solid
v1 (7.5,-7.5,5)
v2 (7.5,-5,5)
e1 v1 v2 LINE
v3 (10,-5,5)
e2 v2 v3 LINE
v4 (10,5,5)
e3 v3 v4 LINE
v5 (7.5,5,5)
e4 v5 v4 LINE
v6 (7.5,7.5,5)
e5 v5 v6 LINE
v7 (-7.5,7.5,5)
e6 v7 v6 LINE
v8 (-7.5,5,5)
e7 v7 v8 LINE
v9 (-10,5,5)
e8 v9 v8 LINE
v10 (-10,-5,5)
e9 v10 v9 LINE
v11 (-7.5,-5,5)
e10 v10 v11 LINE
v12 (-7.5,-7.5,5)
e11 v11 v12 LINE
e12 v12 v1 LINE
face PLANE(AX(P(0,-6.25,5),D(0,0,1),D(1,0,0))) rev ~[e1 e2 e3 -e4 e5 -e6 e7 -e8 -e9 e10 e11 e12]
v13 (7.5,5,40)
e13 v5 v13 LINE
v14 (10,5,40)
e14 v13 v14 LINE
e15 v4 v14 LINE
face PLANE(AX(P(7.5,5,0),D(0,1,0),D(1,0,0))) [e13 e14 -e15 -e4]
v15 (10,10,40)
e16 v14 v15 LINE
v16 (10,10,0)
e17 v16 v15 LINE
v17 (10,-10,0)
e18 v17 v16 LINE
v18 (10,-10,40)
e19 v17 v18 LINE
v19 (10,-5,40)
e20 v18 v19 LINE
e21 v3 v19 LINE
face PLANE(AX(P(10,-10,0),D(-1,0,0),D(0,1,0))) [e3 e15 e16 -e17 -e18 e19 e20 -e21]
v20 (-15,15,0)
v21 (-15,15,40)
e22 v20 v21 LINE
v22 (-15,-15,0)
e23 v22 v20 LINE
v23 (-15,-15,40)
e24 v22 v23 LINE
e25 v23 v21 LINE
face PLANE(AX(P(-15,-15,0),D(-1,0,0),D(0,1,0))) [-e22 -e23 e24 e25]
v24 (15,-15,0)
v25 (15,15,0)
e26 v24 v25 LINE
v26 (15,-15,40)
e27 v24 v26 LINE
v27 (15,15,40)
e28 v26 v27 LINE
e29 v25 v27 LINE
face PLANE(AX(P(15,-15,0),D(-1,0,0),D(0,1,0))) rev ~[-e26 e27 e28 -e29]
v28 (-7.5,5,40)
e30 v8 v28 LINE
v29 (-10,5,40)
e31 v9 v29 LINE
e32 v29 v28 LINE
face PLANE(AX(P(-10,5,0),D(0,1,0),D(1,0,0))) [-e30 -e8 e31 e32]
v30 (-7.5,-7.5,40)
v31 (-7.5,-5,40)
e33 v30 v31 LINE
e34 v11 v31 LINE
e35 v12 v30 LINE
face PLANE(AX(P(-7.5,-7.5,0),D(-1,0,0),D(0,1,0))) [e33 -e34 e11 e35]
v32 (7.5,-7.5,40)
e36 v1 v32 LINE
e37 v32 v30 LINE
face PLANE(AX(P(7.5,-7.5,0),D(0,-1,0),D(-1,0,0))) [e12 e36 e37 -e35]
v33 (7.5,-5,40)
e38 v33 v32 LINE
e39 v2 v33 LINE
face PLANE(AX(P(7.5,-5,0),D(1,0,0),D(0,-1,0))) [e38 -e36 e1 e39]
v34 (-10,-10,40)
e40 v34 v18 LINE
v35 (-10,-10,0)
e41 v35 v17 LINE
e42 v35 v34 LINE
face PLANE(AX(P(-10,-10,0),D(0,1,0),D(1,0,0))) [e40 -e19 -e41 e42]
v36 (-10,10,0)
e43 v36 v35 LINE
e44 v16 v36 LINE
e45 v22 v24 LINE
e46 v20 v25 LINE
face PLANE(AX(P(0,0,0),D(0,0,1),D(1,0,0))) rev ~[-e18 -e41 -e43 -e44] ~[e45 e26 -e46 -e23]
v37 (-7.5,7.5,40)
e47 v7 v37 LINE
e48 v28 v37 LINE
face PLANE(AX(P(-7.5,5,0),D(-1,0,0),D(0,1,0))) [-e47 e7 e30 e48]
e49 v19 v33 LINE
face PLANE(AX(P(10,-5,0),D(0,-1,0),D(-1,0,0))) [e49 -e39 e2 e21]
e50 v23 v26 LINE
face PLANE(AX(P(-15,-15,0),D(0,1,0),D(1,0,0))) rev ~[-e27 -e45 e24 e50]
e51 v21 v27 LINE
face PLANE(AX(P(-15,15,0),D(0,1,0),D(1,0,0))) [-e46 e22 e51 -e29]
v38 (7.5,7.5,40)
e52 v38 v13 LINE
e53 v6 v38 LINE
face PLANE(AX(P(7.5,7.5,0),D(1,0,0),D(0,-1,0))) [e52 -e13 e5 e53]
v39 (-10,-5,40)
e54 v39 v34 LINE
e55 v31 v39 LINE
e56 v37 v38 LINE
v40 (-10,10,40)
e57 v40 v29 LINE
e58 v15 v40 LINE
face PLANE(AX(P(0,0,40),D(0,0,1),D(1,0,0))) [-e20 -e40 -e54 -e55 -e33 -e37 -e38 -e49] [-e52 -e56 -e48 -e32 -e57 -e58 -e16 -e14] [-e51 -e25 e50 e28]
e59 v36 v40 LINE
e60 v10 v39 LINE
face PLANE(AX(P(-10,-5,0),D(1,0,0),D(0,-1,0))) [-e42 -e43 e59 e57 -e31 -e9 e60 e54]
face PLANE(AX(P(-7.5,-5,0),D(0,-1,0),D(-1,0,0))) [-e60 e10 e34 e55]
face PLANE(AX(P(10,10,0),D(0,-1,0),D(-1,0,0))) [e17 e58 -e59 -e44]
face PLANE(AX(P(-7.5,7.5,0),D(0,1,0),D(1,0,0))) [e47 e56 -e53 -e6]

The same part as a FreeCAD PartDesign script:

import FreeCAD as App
import Part
import Sketcher

V = App.Vector


def add_polygon(sketch, points):
    """Adds a closed chain of lines whose ends are joined by coincident constraints."""
    first, n = sketch.GeometryCount, len(points)
    for a, b in zip(points, points[1:] + points[:1]):
        sketch.addGeometry(Part.LineSegment(App.Vector(*a, 0), App.Vector(*b, 0)), False)
    for i in range(n):
        sketch.addConstraint(Sketcher.Constraint("Coincident", first + i, 2, first + (i + 1) % n, 1))

doc = App.newDocument("Part")
body = doc.addObject("PartDesign::Body", "Body")

sketch1 = doc.addObject("Sketcher::SketchObject", "Sketch")
body.addObject(sketch1)
sketch1.AttachmentSupport = (doc.XY_Plane, [""])
sketch1.MapMode = "FlatFace"
add_polygon(sketch1, [(-15, 15), (-15, -15), (15, -15), (15, 15)])
sketch1.addConstraint([
    Sketcher.Constraint("Vertical", 0),
    Sketcher.Constraint("Horizontal", 1),
    Sketcher.Constraint("Vertical", 2),
    Sketcher.Constraint("Horizontal", 3),
    Sketcher.Constraint("Symmetric", 0, 2, 2, 2, -1, 1),
    Sketcher.Constraint("Equal", 3, 0),
    Sketcher.Constraint("DistanceX", 1, 1, 1, 2, 30.0),
])
pad1 = doc.addObject("PartDesign::Pad", "Pad")
body.addObject(pad1)
pad1.Profile = sketch1
pad1.Length = 40

sketch2 = doc.addObject("Sketcher::SketchObject", "Sketch001")
body.addObject(sketch2)
sketch2.AttachmentSupport = (doc.XY_Plane, [""])
sketch2.MapMode = "FlatFace"
add_polygon(sketch2, [(-7.5, -7.5), (7.5, -7.5), (7.5, -5), (10, -5), (10, 5), (7.5, 5), (7.5, 7.5), (-7.5, 7.5), (-7.5, 5), (-10, 5), (-10, -5), (-7.5, -5)])
sketch2.addConstraint([
    Sketcher.Constraint("Horizontal", 0),
    Sketcher.Constraint("Vertical", 1),
    Sketcher.Constraint("Horizontal", 2),
    Sketcher.Constraint("Vertical", 3),
    Sketcher.Constraint("Horizontal", 4),
    Sketcher.Constraint("Vertical", 5),
    Sketcher.Constraint("Horizontal", 6),
    Sketcher.Constraint("Vertical", 7),
    Sketcher.Constraint("Horizontal", 8),
    Sketcher.Constraint("Vertical", 9),
    Sketcher.Constraint("Horizontal", 10),
    Sketcher.Constraint("Vertical", 11),
    Sketcher.Constraint("Symmetric", 0, 2, 6, 2, -1, 1),
    Sketcher.Constraint("Symmetric", 2, 2, 8, 2, -1, 1),
    Sketcher.Constraint("Symmetric", 4, 2, 10, 2, -1, 1),
    Sketcher.Constraint("Symmetric", 4, 2, 7, 2, -2),
    Sketcher.Constraint("Equal", 10, 1),
    Sketcher.Constraint("DistanceX", 0, 1, 0, 2, 15.0),
    Sketcher.Constraint("DistanceY", 3, 1, 3, 2, 10.0),
    Sketcher.Constraint("DistanceX", 2, 1, 2, 2, 2.5),
])
pocket1 = doc.addObject("PartDesign::Pocket", "Pocket")
body.addObject(pocket1)
pocket1.Profile = sketch2
pocket1.Length = 5
pocket1.Reversed = True

sketch3 = doc.addObject("Sketcher::SketchObject", "Sketch002")
body.addObject(sketch3)
sketch3.AttachmentSupport = (doc.XY_Plane, [""])
sketch3.MapMode = "FlatFace"
add_polygon(sketch3, [(7.5, -5), (7.5, -7.5), (-7.5, -7.5), (-7.5, -5), (-10, -5), (-10, -10), (10, -10), (10, -5)])
add_polygon(sketch3, [(7.5, 7.5), (7.5, 5), (10, 5), (10, 10), (-10, 10), (-10, 5), (-7.5, 5), (-7.5, 7.5)])
sketch3.addConstraint([
    Sketcher.Constraint("Vertical", 0),
    Sketcher.Constraint("Horizontal", 1),
    Sketcher.Constraint("Vertical", 2),
    Sketcher.Constraint("Horizontal", 3),
    Sketcher.Constraint("Vertical", 4),
    Sketcher.Constraint("Horizontal", 5),
    Sketcher.Constraint("Vertical", 6),
    Sketcher.Constraint("Horizontal", 7),
    Sketcher.Constraint("Vertical", 8),
    Sketcher.Constraint("Horizontal", 9),
    Sketcher.Constraint("Vertical", 10),
    Sketcher.Constraint("Horizontal", 11),
    Sketcher.Constraint("Vertical", 12),
    Sketcher.Constraint("Horizontal", 13),
    Sketcher.Constraint("Vertical", 14),
    Sketcher.Constraint("Horizontal", 15),
    Sketcher.Constraint("Symmetric", 2, 2, 8, 2, -1, 1),
    Sketcher.Constraint("Symmetric", 4, 2, 10, 2, -1, 1),
    Sketcher.Constraint("Symmetric", 6, 2, 12, 2, -1, 1),
    Sketcher.Constraint("Symmetric", 0, 2, 14, 2, -1, 1),
    Sketcher.Constraint("Symmetric", 3, 2, 6, 2, -2),
    Sketcher.Constraint("Vertical", 7, 2, 8, 2),
    Sketcher.Constraint("Equal", 13, 0),
    Sketcher.Constraint("DistanceX", 1, 2, 1, 1, 15.0),
    Sketcher.Constraint("DistanceX", 5, 1, 5, 2, 20.0),
    Sketcher.Constraint("DistanceY", 4, 2, 4, 1, 5.0),
    Sketcher.Constraint("DistanceY", 2, 2, -1, 1, 5.0),
])
pocket2 = doc.addObject("PartDesign::Pocket", "Pocket001")
body.addObject(pocket2)
pocket2.Profile = sketch3
pocket2.Length = 40
pocket2.Reversed = True

doc.recompute()
